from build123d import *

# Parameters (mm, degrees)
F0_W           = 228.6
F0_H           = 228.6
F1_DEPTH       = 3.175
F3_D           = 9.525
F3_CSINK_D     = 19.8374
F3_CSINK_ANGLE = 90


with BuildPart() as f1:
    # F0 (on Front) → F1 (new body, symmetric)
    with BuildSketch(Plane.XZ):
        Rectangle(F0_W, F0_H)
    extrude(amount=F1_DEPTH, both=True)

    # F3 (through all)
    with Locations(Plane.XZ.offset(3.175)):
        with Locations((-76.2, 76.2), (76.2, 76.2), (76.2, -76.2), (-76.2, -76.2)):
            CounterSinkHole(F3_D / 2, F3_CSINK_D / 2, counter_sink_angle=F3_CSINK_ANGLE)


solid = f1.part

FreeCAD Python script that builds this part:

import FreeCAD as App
import Part
import Sketcher
Q = App.Units.Quantity


def add_polygon(sketch, points):
    """Adds a closed chain of lines whose ends are joined by coincident constraints."""
    first, n = sketch.GeometryCount, len(points)
    for a, b in zip(points, points[1:] + points[:1]):
        sketch.addGeometry(Part.LineSegment(App.Vector(*a, 0), App.Vector(*b, 0)), False)
    for i in range(n):
        sketch.addConstraint(Sketcher.Constraint("Coincident", first + i, 2, first + (i + 1) % n, 1))

doc = App.newDocument("Part")
body = doc.addObject("PartDesign::Body", "Body")

# Sketch on XZ plane
sketch1 = body.newObject("Sketcher::SketchObject", "Sketch")
sketch1.AttachmentSupport = (doc.getObject("XZ_Plane"), [""])
sketch1.MapMode = "FlatFace"
add_polygon(sketch1, [(-114.3, 114.3), (-114.3, -114.3), (114.3, -114.3), (114.3, 114.3)])  # lines 0-3
sketch1.addConstraint(Sketcher.Constraint("Vertical", 0))
sketch1.addConstraint(Sketcher.Constraint("Horizontal", 1))
sketch1.addConstraint(Sketcher.Constraint("Vertical", 2))
sketch1.addConstraint(Sketcher.Constraint("Horizontal", 3))
sketch1.addConstraint(Sketcher.Constraint("Symmetric", 0, 2, 2, 2, -1, 1))
sketch1.addConstraint(Sketcher.Constraint("Equal", 3, 0))
sketch1.addConstraint(Sketcher.Constraint("DistanceX", 1, 1, 1, 2, Q("9 in")))
pad1 = body.newObject("PartDesign::Pad", "Pad")
pad1.Profile = sketch1
pad1.Length = Q("0.25 in")
pad1.Midplane = True

# Sketch on XZ plane
sketch2 = body.newObject("Sketcher::SketchObject", "Sketch001")
sketch2.AttachmentSupport = (doc.getObject("XZ_Plane"), [""])
sketch2.MapMode = "FlatFace"
sketch2.AttachmentOffset = App.Placement(App.Vector(0, 0, 0.125 * 25.4), App.Rotation())
sketch2.addGeometry(Part.Circle(App.Vector(-76.2, 76.2, 0), App.Vector(0, 0, 1), 4.7625), False)
sketch2.addGeometry(Part.Circle(App.Vector(76.2, 76.2, 0), App.Vector(0, 0, 1), 4.7625), False)
sketch2.addGeometry(Part.Circle(App.Vector(76.2, -76.2, 0), App.Vector(0, 0, 1), 4.7625), False)
sketch2.addGeometry(Part.Circle(App.Vector(-76.2, -76.2, 0), App.Vector(0, 0, 1), 4.7625), False)
sketch2.addConstraint(Sketcher.Constraint("Equal", 0, 1))
sketch2.addConstraint(Sketcher.Constraint("Equal", 1, 2))
sketch2.addConstraint(Sketcher.Constraint("Equal", 2, 3))
sketch2.addConstraint(Sketcher.Constraint("Symmetric", 0, 3, 2, 3, -1, 1))
sketch2.addConstraint(Sketcher.Constraint("Symmetric", 1, 3, 3, 3, -1, 1))
sketch2.addConstraint(Sketcher.Constraint("Symmetric", 0, 3, 1, 3, -2))
sketch2.addConstraint(Sketcher.Constraint("Diameter", 0, Q("0.375 in")))
sketch2.addConstraint(Sketcher.Constraint("DistanceX", 0, 3, -1, 1, Q("3 in")))
sketch2.addConstraint(Sketcher.Constraint("DistanceY", -1, 1, 0, 3, Q("3 in")))
doc.recompute()
hole = body.newObject("PartDesign::Hole", "Hole")
hole.Profile = sketch2
hole.ThreadType = "None"
hole.Diameter = Q("0.375 in")
hole.DepthType = "ThroughAll"
hole.HoleCutType = "Countersink"
hole.HoleCutDiameter = Q("0.781 in")
hole.HoleCutCountersinkAngle = 90

doc.recompute()
